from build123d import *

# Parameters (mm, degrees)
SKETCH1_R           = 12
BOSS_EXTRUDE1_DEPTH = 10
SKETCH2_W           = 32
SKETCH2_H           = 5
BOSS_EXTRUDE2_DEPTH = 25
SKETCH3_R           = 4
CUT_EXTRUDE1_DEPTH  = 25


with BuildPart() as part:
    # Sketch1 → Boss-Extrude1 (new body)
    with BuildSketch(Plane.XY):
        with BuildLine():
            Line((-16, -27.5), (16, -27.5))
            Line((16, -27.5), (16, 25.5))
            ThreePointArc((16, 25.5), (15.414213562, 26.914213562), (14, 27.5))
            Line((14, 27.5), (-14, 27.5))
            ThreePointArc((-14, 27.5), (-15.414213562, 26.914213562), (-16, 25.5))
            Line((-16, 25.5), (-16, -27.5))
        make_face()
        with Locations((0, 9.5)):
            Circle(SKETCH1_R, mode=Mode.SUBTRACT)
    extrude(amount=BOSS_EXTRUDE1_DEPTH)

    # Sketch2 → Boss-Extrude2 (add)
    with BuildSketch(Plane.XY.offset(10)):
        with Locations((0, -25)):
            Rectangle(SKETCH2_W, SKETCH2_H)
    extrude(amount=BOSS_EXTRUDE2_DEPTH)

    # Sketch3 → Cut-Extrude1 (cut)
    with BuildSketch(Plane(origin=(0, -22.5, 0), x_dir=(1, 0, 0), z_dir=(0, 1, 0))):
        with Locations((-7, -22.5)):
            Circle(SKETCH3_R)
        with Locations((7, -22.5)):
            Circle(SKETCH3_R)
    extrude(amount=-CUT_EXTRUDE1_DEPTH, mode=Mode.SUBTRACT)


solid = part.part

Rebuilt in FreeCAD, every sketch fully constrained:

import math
import FreeCAD as App
import Part
import Sketcher
Q = App.Units.Quantity


def add_polygon(sketch, points):
    """Adds a closed chain of lines whose ends are joined by coincident constraints."""
    first, n = sketch.GeometryCount, len(points)
    for a, b in zip(points, points[1:] + points[:1]):
        sketch.addGeometry(Part.LineSegment(App.Vector(*a, 0), App.Vector(*b, 0)), False)
    for i in range(n):
        sketch.addConstraint(Sketcher.Constraint("Coincident", first + i, 2, first + (i + 1) % n, 1))

doc = App.newDocument("Part")
body = doc.addObject("PartDesign::Body", "Body")

# Sketch on XY plane
sketch1 = body.newObject("Sketcher::SketchObject", "Sketch")
sketch1.AttachmentSupport = (doc.getObject("XY_Plane"), [""])
sketch1.MapMode = "FlatFace"
sketch1.addGeometry(Part.LineSegment(App.Vector(-16, -27.5, 0), App.Vector(16, -27.5, 0)), False)
sketch1.addGeometry(Part.LineSegment(App.Vector(16, -27.5, 0), App.Vector(16, 25.5, 0)), False)
sketch1.addGeometry(Part.ArcOfCircle(Part.Circle(App.Vector(14, 25.5, 0), App.Vector(0, 0, 1), 2), math.radians(0), math.radians(90)), False)
sketch1.addGeometry(Part.LineSegment(App.Vector(14, 27.5, 0), App.Vector(-14, 27.5, 0)), False)
sketch1.addGeometry(Part.ArcOfCircle(Part.Circle(App.Vector(-14, 25.5, 0), App.Vector(0, 0, 1), 2), math.radians(90), math.radians(180)), False)
sketch1.addGeometry(Part.LineSegment(App.Vector(-16, 25.5, 0), App.Vector(-16, -27.5, 0)), False)
sketch1.addGeometry(Part.Circle(App.Vector(0, 9.5, 0), App.Vector(0, 0, 1), 12), False)
sketch1.addConstraint(Sketcher.Constraint("Coincident", 0, 2, 1, 1))
sketch1.addConstraint(Sketcher.Constraint("Tangent", 1, 2, 2, 1))
sketch1.addConstraint(Sketcher.Constraint("Tangent", 2, 2, 3, 1))
sketch1.addConstraint(Sketcher.Constraint("Tangent", 3, 2, 4, 1))
sketch1.addConstraint(Sketcher.Constraint("Tangent", 4, 2, 5, 1))
sketch1.addConstraint(Sketcher.Constraint("Coincident", 5, 2, 0, 1))
sketch1.addConstraint(Sketcher.Constraint("Horizontal", 0))
sketch1.addConstraint(Sketcher.Constraint("Vertical", 1))
sketch1.addConstraint(Sketcher.Constraint("Horizontal", 3))
sketch1.addConstraint(Sketcher.Constraint("Vertical", 5))
sketch1.addConstraint(Sketcher.Constraint("Equal", 2, 4))
sketch1.addConstraint(Sketcher.Constraint("PointOnObject", 6, 3, -2))
sketch1.addConstraint(Sketcher.Constraint("Diameter", 6, Q("24 mm")))
sketch1.addConstraint(Sketcher.Constraint("Radius", 2, Q("2 mm")))
sketch1.addConstraint(Sketcher.Constraint("DistanceX", 0, 1, 0, 2, Q("32 mm")))
sketch1.addConstraint(Sketcher.Constraint("DistanceY", 1, 1, 1, 2, Q("53 mm")))
sketch1.addConstraint(Sketcher.Constraint("DistanceX", -1, 1, 2, 3, Q("14 mm")))
sketch1.addConstraint(Sketcher.Constraint("DistanceY", 6, 3, 2, 3, Q("16 mm")))
sketch1.addConstraint(Sketcher.Constraint("DistanceY", -1, 1, 2, 3, Q("25.5 mm")))
pad1 = body.newObject("PartDesign::Pad", "Pad")
pad1.Profile = sketch1
pad1.Length = 10

# Sketch on XY plane
sketch2 = body.newObject("Sketcher::SketchObject", "Sketch001")
sketch2.AttachmentSupport = (doc.getObject("XY_Plane"), [""])
sketch2.MapMode = "FlatFace"
sketch2.AttachmentOffset = App.Placement(App.Vector(0, 0, 10), App.Rotation())
add_polygon(sketch2, [(-16, -22), (-16, -28), (16, -28), (16, -22)])  # lines 0-3
sketch2.addConstraint(Sketcher.Constraint("Vertical", 0))
sketch2.addConstraint(Sketcher.Constraint("Horizontal", 1))
sketch2.addConstraint(Sketcher.Constraint("Vertical", 2))
sketch2.addConstraint(Sketcher.Constraint("Horizontal", 3))
sketch2.addConstraint(Sketcher.Constraint("DistanceX", 1, 1, 1, 2, Q("32 mm")))
sketch2.addConstraint(Sketcher.Constraint("DistanceY", 0, 2, 0, 1, Q("5 mm")))
sketch2.addConstraint(Sketcher.Constraint("DistanceX", 0, 2, -1, 1, Q("16 mm")))
sketch2.addConstraint(Sketcher.Constraint("DistanceY", 0, 2, -1, 1, Q("27.5 mm")))
pad2 = body.newObject("PartDesign::Pad", "Pad001")
pad2.Profile = sketch2
pad2.Length = 25

# Sketch on XZ plane
sketch3 = body.newObject("Sketcher::SketchObject", "Sketch002")
sketch3.AttachmentSupport = (doc.getObject("XZ_Plane"), [""])
sketch3.MapMode = "FlatFace"
sketch3.AttachmentOffset = App.Placement(App.Vector(0, 0, 22.5), App.Rotation())
sketch3.addGeometry(Part.Circle(App.Vector(-7, 22.5, 0), App.Vector(0, 0, 1), 4), False)
sketch3.addGeometry(Part.Circle(App.Vector(7, 22.5, 0), App.Vector(0, 0, 1), 4), False)
sketch3.addConstraint(Sketcher.Constraint("Equal", 0, 1))
sketch3.addConstraint(Sketcher.Constraint("Symmetric", 0, 3, 1, 3, -2))
sketch3.addConstraint(Sketcher.Constraint("Diameter", 0, Q("8 mm")))
sketch3.addConstraint(Sketcher.Constraint("DistanceX", 0, 3, -1, 1, Q("7 mm")))
sketch3.addConstraint(Sketcher.Constraint("DistanceY", -1, 1, 0, 3, Q("22.5 mm")))
pocket1 = body.newObject("PartDesign::Pocket", "Pocket")
pocket1.Profile = sketch3
pocket1.Length = 25
pocket1.Reversed = True

doc.recompute()
